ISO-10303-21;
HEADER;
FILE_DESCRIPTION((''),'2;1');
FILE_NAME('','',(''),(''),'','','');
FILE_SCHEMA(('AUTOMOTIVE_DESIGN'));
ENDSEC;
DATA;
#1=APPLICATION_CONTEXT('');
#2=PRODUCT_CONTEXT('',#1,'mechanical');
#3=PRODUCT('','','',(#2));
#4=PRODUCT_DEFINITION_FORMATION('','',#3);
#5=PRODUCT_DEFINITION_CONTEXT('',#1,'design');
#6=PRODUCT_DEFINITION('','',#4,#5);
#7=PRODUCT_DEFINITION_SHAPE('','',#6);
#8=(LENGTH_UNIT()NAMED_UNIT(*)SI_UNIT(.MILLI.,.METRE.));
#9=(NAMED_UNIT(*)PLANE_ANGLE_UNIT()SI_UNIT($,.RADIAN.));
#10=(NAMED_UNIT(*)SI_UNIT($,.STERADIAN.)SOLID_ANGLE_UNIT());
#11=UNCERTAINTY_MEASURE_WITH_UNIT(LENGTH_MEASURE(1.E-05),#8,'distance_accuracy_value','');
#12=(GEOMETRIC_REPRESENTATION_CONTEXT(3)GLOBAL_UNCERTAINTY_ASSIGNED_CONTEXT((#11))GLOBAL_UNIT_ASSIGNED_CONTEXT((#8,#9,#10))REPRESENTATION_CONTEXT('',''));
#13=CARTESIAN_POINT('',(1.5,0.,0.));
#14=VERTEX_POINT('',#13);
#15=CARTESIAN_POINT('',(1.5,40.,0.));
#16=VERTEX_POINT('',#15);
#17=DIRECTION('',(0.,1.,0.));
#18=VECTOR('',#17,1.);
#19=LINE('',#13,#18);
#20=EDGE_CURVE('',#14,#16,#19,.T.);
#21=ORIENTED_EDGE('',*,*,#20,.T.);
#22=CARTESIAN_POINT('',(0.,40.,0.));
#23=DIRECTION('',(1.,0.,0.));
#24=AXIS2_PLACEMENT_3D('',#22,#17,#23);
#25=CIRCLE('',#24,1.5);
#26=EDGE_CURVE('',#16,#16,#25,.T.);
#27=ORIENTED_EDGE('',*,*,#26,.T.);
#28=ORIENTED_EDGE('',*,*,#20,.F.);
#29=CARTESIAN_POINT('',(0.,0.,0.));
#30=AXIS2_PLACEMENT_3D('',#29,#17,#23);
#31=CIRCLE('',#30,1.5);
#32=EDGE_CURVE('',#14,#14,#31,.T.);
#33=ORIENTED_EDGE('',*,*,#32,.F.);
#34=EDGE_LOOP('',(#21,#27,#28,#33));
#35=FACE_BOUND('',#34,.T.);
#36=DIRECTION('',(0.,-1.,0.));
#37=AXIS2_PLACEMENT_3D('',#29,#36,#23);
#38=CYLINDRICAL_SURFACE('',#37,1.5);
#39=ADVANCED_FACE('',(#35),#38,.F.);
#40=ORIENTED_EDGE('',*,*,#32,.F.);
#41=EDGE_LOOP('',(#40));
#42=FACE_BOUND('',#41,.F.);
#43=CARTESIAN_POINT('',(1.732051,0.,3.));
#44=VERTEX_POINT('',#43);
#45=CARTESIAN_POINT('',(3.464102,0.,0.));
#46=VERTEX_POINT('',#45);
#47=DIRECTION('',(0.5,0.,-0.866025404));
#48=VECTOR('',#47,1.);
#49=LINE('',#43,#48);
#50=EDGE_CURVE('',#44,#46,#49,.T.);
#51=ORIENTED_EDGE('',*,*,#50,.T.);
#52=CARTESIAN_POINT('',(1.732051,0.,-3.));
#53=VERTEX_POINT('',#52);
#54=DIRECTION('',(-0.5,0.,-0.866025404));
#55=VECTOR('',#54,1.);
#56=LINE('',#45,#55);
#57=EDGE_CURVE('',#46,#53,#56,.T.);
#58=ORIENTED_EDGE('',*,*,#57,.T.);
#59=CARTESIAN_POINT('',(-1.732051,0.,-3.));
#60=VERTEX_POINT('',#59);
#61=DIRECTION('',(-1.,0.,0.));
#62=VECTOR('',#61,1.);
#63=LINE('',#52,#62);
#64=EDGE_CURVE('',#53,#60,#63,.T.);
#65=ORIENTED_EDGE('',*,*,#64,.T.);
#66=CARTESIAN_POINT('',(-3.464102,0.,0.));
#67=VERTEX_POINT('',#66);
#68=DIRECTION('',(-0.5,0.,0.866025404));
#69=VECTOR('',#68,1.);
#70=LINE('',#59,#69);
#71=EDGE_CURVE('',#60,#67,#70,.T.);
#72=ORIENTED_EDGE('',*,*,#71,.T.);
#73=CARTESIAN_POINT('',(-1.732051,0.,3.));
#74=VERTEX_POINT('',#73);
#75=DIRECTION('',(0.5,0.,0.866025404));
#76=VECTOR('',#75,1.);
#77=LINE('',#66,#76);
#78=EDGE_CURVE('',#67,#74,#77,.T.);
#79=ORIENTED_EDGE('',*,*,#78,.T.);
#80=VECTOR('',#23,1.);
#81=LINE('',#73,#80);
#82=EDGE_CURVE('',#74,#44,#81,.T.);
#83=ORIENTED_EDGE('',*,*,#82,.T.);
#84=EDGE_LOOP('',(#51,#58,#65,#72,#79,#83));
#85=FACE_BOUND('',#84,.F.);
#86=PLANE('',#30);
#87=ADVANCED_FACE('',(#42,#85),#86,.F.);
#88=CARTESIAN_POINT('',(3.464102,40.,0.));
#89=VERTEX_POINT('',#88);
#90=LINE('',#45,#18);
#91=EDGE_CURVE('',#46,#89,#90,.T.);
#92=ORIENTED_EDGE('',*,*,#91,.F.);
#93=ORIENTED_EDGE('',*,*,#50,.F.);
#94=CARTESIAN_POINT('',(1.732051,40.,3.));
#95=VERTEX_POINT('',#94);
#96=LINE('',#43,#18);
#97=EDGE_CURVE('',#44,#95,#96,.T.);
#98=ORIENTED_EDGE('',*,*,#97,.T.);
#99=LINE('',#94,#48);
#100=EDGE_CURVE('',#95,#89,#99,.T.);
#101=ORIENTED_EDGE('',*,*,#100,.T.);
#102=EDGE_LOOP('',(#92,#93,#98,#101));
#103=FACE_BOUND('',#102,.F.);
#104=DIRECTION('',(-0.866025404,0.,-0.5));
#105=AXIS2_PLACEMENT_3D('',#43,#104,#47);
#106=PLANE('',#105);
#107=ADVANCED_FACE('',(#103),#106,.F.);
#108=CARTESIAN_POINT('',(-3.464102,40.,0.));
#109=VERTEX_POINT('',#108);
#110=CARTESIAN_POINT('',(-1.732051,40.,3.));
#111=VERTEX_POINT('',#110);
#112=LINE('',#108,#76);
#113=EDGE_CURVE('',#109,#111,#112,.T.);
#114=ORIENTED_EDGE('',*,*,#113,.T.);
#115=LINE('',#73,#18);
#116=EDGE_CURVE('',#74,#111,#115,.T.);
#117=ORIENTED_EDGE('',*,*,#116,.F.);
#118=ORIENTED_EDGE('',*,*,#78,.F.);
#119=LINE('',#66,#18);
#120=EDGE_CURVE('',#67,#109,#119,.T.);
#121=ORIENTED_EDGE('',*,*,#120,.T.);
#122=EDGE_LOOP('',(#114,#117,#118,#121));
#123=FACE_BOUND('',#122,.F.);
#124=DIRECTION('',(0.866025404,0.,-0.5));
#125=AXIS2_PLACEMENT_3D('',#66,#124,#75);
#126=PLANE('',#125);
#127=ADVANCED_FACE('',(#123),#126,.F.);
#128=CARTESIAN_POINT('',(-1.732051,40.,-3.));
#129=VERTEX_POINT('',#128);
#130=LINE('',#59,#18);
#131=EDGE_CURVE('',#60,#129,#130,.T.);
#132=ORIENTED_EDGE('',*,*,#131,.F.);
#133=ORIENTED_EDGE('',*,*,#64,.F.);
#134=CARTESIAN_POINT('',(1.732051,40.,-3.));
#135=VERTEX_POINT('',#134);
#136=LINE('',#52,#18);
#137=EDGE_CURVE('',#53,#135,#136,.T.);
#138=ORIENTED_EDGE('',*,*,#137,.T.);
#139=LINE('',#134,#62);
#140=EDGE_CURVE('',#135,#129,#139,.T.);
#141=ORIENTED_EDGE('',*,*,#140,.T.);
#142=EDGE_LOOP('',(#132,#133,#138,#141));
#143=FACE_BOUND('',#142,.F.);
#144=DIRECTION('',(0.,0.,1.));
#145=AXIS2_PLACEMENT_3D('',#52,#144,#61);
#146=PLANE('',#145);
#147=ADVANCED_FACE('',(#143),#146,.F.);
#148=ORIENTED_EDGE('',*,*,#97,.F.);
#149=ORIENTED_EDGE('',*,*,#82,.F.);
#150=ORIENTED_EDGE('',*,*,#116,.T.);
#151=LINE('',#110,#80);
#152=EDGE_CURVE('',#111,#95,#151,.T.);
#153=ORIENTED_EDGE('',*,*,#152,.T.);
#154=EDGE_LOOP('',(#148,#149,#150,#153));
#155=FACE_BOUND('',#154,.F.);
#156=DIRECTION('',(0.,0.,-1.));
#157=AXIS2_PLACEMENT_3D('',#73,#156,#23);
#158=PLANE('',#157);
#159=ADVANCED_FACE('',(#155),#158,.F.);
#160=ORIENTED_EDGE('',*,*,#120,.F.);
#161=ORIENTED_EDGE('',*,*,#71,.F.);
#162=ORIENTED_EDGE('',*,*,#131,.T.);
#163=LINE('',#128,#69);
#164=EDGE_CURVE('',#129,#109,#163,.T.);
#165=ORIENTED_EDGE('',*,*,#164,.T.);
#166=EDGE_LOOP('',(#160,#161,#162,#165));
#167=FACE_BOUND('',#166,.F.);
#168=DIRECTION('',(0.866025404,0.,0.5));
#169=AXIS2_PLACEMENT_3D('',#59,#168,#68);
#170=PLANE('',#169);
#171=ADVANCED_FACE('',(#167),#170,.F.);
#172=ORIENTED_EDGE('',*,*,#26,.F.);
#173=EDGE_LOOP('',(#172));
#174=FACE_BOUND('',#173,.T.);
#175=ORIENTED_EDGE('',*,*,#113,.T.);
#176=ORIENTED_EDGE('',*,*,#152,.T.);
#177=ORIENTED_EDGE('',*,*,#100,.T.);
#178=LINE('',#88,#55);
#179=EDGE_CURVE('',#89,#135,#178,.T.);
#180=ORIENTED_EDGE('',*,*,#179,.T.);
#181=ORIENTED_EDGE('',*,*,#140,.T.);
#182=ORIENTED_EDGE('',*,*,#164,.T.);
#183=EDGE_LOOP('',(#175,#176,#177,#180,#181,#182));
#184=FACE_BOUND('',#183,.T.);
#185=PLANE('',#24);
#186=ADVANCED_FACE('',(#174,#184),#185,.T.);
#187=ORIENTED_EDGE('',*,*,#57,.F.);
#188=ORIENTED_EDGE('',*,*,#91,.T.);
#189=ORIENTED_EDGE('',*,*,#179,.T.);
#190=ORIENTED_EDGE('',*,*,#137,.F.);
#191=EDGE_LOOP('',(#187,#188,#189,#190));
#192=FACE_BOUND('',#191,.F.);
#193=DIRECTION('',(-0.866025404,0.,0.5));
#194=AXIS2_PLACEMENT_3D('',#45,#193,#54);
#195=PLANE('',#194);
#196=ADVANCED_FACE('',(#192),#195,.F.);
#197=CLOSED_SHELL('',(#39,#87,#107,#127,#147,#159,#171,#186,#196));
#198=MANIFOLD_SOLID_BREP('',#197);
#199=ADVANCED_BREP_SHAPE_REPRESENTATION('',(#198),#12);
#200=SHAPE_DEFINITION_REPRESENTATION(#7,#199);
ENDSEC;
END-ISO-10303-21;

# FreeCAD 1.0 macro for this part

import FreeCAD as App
import Part
import Sketcher
Q = App.Units.Quantity

doc = App.newDocument("Part")
body = doc.addObject("PartDesign::Body", "Body")

# Sketch on XZ plane
sketch1 = body.newObject("Sketcher::SketchObject", "Sketch")
sketch1.AttachmentSupport = (doc.getObject("XZ_Plane"), [""])
sketch1.MapMode = "FlatFace"
sketch1.addGeometry([
    Part.LineSegment(App.Vector(3.5, 0, 0), App.Vector(1.7, -3, 0)),  # 0
    Part.LineSegment(App.Vector(1.7, -3, 0), App.Vector(-1.7, -3, 0)),  # 1
    Part.LineSegment(App.Vector(-1.7, -3, 0), App.Vector(-3.5, 0, 0)),  # 2
    Part.LineSegment(App.Vector(-3.5, 0, 0), App.Vector(-1.7, 3, 0)),  # 3
    Part.LineSegment(App.Vector(-1.7, 3, 0), App.Vector(1.7, 3, 0)),  # 4
    Part.LineSegment(App.Vector(1.7, 3, 0), App.Vector(3.5, 0, 0)),  # 5
    Part.Circle(App.Vector(0, 0, 0), App.Vector(0, 0, 1), 1.5),  # 6
], False)
sketch1.addConstraint([
    Sketcher.Constraint("Coincident", 0, 2, 1, 1),
    Sketcher.Constraint("Coincident", 1, 2, 2, 1),
    Sketcher.Constraint("Coincident", 2, 2, 3, 1),
    Sketcher.Constraint("Coincident", 3, 2, 4, 1),
    Sketcher.Constraint("Coincident", 4, 2, 5, 1),
    Sketcher.Constraint("Coincident", 5, 2, 0, 1),
    Sketcher.Constraint("Horizontal", 1),
    Sketcher.Constraint("Horizontal", 4),
    Sketcher.Constraint("Coincident", 6, 3, -1, 1),
    Sketcher.Constraint("Symmetric", 0, 2, 3, 2, -1, 1),
    Sketcher.Constraint("Symmetric", 2, 2, 5, 2, -1, 1),
    Sketcher.Constraint("PointOnObject", 2, 2, -1),
    Sketcher.Constraint("Parallel", 2, 5),
    Sketcher.Constraint("Vertical", 1, 2, 3, 2),
    Sketcher.Constraint("Diameter", 6, 3.0),
    Sketcher.Constraint("Angle", 0, Q("-120 deg")),
    Sketcher.Constraint("DistanceY", 0, 2, -1, 1, 3.0),
    Sketcher.Constraint("DistanceX", 1, 2, 1, 1, 3.464102),
])
pad1 = body.newObject("PartDesign::Pad", "Pad")
pad1.Profile = sketch1
pad1.Length = 40
pad1.Reversed = True

doc.recompute()
